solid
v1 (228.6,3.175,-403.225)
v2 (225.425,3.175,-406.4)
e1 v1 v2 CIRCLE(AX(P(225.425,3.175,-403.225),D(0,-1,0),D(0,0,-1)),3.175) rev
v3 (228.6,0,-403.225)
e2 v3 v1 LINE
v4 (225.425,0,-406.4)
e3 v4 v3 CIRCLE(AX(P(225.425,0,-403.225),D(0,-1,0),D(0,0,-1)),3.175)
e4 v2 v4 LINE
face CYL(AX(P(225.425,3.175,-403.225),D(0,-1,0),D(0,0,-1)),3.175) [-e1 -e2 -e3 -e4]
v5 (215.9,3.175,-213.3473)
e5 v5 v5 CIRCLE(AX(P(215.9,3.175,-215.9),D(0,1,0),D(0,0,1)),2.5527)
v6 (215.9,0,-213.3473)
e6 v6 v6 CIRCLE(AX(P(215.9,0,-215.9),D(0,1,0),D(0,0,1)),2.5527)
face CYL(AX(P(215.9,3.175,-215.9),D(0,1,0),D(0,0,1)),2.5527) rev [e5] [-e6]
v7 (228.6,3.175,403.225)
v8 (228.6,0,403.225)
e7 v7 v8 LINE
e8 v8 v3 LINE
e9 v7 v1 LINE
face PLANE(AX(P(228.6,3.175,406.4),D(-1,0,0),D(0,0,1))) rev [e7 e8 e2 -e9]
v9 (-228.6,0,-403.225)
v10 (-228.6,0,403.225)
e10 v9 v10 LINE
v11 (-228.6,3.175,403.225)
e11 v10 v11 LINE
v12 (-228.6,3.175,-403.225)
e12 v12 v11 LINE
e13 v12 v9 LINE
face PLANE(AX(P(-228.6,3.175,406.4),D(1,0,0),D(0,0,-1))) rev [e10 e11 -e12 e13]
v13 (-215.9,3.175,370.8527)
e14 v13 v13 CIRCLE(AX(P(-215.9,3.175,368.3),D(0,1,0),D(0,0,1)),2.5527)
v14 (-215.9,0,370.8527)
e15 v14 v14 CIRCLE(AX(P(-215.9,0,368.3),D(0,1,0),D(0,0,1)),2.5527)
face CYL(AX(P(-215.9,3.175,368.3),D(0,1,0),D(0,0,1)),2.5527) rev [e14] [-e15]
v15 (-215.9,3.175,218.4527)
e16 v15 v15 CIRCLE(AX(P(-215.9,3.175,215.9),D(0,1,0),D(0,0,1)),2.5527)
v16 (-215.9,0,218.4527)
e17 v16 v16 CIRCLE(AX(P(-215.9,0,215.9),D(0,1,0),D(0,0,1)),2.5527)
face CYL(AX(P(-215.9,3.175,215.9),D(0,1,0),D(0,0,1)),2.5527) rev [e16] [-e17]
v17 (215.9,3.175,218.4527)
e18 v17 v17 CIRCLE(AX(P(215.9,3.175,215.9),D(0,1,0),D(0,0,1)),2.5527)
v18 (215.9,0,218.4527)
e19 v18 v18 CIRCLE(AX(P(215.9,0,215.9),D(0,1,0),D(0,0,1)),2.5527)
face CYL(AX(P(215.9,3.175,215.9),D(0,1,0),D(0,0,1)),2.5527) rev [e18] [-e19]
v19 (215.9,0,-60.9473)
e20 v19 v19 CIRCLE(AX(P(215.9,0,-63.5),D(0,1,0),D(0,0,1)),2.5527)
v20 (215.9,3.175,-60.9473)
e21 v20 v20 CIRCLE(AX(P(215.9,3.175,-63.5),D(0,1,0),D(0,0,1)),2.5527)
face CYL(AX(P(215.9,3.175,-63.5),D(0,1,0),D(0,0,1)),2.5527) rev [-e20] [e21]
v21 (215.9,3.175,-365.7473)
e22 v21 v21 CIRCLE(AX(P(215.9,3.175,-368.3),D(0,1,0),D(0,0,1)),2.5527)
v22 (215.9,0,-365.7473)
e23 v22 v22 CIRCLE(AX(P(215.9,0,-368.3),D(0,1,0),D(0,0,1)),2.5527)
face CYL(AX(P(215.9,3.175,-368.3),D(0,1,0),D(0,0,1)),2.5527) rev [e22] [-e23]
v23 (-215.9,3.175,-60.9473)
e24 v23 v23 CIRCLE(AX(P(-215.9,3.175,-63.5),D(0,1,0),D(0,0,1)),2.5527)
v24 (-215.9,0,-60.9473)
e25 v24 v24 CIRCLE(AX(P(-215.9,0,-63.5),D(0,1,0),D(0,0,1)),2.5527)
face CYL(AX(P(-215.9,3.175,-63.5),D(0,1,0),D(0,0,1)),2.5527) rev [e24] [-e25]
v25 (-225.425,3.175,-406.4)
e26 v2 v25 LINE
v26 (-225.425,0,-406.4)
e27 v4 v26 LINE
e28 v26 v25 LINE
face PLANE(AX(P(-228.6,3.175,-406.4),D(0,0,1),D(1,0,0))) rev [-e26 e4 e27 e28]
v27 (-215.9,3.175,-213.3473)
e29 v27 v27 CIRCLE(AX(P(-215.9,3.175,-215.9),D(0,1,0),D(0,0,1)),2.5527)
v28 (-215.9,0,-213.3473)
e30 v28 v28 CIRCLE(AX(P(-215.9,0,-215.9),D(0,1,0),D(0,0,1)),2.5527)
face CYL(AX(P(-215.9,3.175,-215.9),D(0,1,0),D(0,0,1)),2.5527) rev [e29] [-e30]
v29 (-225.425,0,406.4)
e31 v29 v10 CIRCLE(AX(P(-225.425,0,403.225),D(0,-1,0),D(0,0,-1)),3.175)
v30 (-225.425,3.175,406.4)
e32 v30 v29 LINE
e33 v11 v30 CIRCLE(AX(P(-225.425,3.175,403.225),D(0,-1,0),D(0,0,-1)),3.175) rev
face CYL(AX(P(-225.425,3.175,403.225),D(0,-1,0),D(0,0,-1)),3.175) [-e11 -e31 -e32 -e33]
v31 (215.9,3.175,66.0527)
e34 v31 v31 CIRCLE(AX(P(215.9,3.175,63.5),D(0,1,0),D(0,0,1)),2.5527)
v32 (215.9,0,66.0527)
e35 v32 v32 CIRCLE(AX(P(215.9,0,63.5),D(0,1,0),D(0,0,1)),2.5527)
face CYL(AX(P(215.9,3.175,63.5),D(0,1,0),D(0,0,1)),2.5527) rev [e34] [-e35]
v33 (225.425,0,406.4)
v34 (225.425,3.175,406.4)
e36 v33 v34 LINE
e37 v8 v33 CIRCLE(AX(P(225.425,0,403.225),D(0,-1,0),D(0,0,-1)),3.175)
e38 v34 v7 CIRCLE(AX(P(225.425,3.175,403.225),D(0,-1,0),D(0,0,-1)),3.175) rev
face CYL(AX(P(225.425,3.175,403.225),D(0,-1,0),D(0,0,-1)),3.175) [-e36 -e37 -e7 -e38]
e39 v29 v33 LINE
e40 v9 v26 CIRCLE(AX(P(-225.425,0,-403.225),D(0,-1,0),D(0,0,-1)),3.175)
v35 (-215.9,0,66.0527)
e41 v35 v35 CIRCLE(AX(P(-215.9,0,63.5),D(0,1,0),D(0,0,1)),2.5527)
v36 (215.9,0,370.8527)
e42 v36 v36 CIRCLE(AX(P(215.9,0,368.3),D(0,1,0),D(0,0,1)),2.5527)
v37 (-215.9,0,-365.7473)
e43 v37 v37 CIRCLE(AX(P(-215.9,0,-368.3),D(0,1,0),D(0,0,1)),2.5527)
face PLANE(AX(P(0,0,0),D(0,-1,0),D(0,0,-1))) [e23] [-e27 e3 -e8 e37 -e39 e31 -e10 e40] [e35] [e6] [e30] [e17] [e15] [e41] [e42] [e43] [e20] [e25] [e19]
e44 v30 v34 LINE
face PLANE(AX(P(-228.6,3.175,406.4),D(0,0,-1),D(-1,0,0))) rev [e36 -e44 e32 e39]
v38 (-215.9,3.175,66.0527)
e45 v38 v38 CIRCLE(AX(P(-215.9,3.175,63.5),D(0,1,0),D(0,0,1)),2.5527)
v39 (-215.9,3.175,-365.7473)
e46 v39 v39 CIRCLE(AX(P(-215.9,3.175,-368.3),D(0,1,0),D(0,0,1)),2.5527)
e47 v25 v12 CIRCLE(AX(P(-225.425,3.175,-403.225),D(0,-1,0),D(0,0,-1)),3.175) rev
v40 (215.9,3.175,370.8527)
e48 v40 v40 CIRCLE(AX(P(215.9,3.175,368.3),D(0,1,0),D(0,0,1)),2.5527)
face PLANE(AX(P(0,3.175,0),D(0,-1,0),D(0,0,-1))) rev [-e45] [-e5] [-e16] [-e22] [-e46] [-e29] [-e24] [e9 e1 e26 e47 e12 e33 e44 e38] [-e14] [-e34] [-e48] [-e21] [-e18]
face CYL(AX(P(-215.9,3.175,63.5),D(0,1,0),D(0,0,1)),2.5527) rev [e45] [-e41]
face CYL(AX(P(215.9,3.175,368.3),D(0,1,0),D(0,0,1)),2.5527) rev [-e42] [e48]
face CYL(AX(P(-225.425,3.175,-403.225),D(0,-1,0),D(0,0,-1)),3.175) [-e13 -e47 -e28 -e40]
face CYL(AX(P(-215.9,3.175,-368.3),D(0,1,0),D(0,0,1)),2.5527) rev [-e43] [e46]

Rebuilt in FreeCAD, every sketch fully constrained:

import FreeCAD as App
import Part
import Sketcher
Q = App.Units.Quantity


def edges_at(feature, points):
    """Names of the edges that pass closest to the given points."""
    edges = feature.Shape.Edges
    near = lambda p: min(range(len(edges)), key=lambda i: edges[i].distToShape(Part.Vertex(*p))[0])
    return sorted({f"Edge{near(p) + 1}" for p in points})

doc = App.newDocument("Part")
body = doc.addObject("PartDesign::Body", "Body")

sketch1 = doc.addObject("Sketcher::SketchObject", "Sketch")
body.addObject(sketch1)
sketch1.AttachmentSupport = (doc.XZ_Plane, [""])
sketch1.MapMode = "FlatFace"
sketch1.addGeometry(Part.LineSegment(App.Vector(-229, -406, 0), App.Vector(-229, 406, 0)), False)
sketch1.addGeometry(Part.LineSegment(App.Vector(-229, 406, 0), App.Vector(229, 406, 0)), False)
sketch1.addGeometry(Part.LineSegment(App.Vector(229, 406, 0), App.Vector(229, -406, 0)), False)
sketch1.addGeometry(Part.LineSegment(App.Vector(229, -406, 0), App.Vector(-229, -406, 0)), False)
sketch1.addConstraint(Sketcher.Constraint("Coincident", 0, 2, 1, 1))
sketch1.addConstraint(Sketcher.Constraint("Coincident", 1, 2, 2, 1))
sketch1.addConstraint(Sketcher.Constraint("Coincident", 2, 2, 3, 1))
sketch1.addConstraint(Sketcher.Constraint("Coincident", 3, 2, 0, 1))
sketch1.addConstraint(Sketcher.Constraint("Vertical", 0))
sketch1.addConstraint(Sketcher.Constraint("Horizontal", 1))
sketch1.addConstraint(Sketcher.Constraint("Vertical", 2))
sketch1.addConstraint(Sketcher.Constraint("Horizontal", 3))
sketch1.addConstraint(Sketcher.Constraint("Symmetric", 0, 2, 2, 2, -1, 1))
sketch1.addConstraint(Sketcher.Constraint("DistanceX", 1, 1, 1, 2, Q("18 in")))
sketch1.addConstraint(Sketcher.Constraint("DistanceY", 0, 1, 0, 2, Q("32 in")))
pad1 = doc.addObject("PartDesign::Pad", "Pad")
body.addObject(pad1)
pad1.Profile = sketch1
pad1.Length = Q("0.125 in")
pad1.Reversed = True

sketch2 = doc.addObject("Sketcher::SketchObject", "Sketch001")
body.addObject(sketch2)
sketch2.AttachmentSupport = (doc.XZ_Plane, [""])
sketch2.MapMode = "FlatFace"
sketch2.AttachmentOffset = App.Placement(App.Vector(0, 0, -0.125 * 25.4), App.Rotation())
sketch2.addGeometry(Part.Circle(App.Vector(-215.9, -368.3, 0), App.Vector(0, 0, 1), 2.6), False)
sketch2.addGeometry(Part.Circle(App.Vector(215.9, -368.3, 0), App.Vector(0, 0, 1), 2.6), False)
sketch2.addGeometry(Part.Circle(App.Vector(215.9, -215.9, 0), App.Vector(0, 0, 1), 2.6), False)
sketch2.addGeometry(Part.Circle(App.Vector(215.9, -63.5, 0), App.Vector(0, 0, 1), 2.6), False)
sketch2.addGeometry(Part.Circle(App.Vector(215.9, 63.5, 0), App.Vector(0, 0, 1), 2.6), False)
sketch2.addGeometry(Part.Circle(App.Vector(215.9, 215.9, 0), App.Vector(0, 0, 1), 2.6), False)
sketch2.addGeometry(Part.Circle(App.Vector(215.9, 368.3, 0), App.Vector(0, 0, 1), 2.6), False)
sketch2.addGeometry(Part.Circle(App.Vector(-215.9, -215.9, 0), App.Vector(0, 0, 1), 2.6), False)
sketch2.addGeometry(Part.Circle(App.Vector(-215.9, -63.5, 0), App.Vector(0, 0, 1), 2.6), False)
sketch2.addGeometry(Part.Circle(App.Vector(-215.9, 63.5, 0), App.Vector(0, 0, 1), 2.6), False)
sketch2.addGeometry(Part.Circle(App.Vector(-215.9, 215.9, 0), App.Vector(0, 0, 1), 2.6), False)
sketch2.addGeometry(Part.Circle(App.Vector(-215.9, 368.3, 0), App.Vector(0, 0, 1), 2.6), False)
sketch2.addConstraint(Sketcher.Constraint("Equal", 0, 1))
sketch2.addConstraint(Sketcher.Constraint("Equal", 1, 2))
sketch2.addConstraint(Sketcher.Constraint("Equal", 2, 3))
sketch2.addConstraint(Sketcher.Constraint("Equal", 3, 4))
sketch2.addConstraint(Sketcher.Constraint("Equal", 4, 5))
sketch2.addConstraint(Sketcher.Constraint("Equal", 5, 6))
sketch2.addConstraint(Sketcher.Constraint("Equal", 6, 7))
sketch2.addConstraint(Sketcher.Constraint("Equal", 7, 8))
sketch2.addConstraint(Sketcher.Constraint("Equal", 8, 9))
sketch2.addConstraint(Sketcher.Constraint("Equal", 9, 10))
sketch2.addConstraint(Sketcher.Constraint("Equal", 10, 11))
sketch2.addConstraint(Sketcher.Constraint("Symmetric", 0, 3, 6, 3, -1, 1))
sketch2.addConstraint(Sketcher.Constraint("Symmetric", 5, 3, 7, 3, -1, 1))
sketch2.addConstraint(Sketcher.Constraint("Symmetric", 4, 3, 8, 3, -1, 1))
sketch2.addConstraint(Sketcher.Constraint("Symmetric", 3, 3, 9, 3, -1, 1))
sketch2.addConstraint(Sketcher.Constraint("Symmetric", 2, 3, 10, 3, -1, 1))
sketch2.addConstraint(Sketcher.Constraint("Symmetric", 1, 3, 11, 3, -1, 1))
sketch2.addConstraint(Sketcher.Constraint("Symmetric", 0, 3, 1, 3, -2))
sketch2.addConstraint(Sketcher.Constraint("Symmetric", 2, 3, 7, 3, -2))
sketch2.addConstraint(Sketcher.Constraint("Symmetric", 3, 3, 8, 3, -2))
sketch2.addConstraint(Sketcher.Constraint("Vertical", 1, 3, 2, 3))
sketch2.addConstraint(Sketcher.Constraint("Vertical", 2, 3, 3, 3))
sketch2.addConstraint(Sketcher.Constraint("Diameter", 0, Q("0.201 in")))
sketch2.addConstraint(Sketcher.Constraint("DistanceX", 0, 3, 1, 3, Q("17 in")))
sketch2.addConstraint(Sketcher.Constraint("DistanceY", 1, 3, 2, 3, Q("6 in")))
sketch2.addConstraint(Sketcher.Constraint("DistanceY", 2, 3, 3, 3, Q("6 in")))
sketch2.addConstraint(Sketcher.Constraint("DistanceY", 3, 3, 4, 3, Q("5 in")))
doc.recompute()
hole = doc.addObject("PartDesign::Hole", "Hole")
body.addObject(hole)
hole.Profile = sketch2
hole.ThreadType = "None"
hole.Diameter = Q("0.201 in")
hole.DepthType = "ThroughAll"
hole.Reversed = True
doc.recompute()

fillet = doc.addObject("PartDesign::Fillet", "Fillet")
body.addObject(fillet)
fillet.Base = (hole, edges_at(hole, [
    (228.6, 1.587, 406.4),
    (-228.6, 1.587, 406.4),
    (-228.6, 1.587, -406.4),
    (228.6, 1.587, -406.4),
]))
fillet.Radius = Q("0.125 in")

doc.recompute()
